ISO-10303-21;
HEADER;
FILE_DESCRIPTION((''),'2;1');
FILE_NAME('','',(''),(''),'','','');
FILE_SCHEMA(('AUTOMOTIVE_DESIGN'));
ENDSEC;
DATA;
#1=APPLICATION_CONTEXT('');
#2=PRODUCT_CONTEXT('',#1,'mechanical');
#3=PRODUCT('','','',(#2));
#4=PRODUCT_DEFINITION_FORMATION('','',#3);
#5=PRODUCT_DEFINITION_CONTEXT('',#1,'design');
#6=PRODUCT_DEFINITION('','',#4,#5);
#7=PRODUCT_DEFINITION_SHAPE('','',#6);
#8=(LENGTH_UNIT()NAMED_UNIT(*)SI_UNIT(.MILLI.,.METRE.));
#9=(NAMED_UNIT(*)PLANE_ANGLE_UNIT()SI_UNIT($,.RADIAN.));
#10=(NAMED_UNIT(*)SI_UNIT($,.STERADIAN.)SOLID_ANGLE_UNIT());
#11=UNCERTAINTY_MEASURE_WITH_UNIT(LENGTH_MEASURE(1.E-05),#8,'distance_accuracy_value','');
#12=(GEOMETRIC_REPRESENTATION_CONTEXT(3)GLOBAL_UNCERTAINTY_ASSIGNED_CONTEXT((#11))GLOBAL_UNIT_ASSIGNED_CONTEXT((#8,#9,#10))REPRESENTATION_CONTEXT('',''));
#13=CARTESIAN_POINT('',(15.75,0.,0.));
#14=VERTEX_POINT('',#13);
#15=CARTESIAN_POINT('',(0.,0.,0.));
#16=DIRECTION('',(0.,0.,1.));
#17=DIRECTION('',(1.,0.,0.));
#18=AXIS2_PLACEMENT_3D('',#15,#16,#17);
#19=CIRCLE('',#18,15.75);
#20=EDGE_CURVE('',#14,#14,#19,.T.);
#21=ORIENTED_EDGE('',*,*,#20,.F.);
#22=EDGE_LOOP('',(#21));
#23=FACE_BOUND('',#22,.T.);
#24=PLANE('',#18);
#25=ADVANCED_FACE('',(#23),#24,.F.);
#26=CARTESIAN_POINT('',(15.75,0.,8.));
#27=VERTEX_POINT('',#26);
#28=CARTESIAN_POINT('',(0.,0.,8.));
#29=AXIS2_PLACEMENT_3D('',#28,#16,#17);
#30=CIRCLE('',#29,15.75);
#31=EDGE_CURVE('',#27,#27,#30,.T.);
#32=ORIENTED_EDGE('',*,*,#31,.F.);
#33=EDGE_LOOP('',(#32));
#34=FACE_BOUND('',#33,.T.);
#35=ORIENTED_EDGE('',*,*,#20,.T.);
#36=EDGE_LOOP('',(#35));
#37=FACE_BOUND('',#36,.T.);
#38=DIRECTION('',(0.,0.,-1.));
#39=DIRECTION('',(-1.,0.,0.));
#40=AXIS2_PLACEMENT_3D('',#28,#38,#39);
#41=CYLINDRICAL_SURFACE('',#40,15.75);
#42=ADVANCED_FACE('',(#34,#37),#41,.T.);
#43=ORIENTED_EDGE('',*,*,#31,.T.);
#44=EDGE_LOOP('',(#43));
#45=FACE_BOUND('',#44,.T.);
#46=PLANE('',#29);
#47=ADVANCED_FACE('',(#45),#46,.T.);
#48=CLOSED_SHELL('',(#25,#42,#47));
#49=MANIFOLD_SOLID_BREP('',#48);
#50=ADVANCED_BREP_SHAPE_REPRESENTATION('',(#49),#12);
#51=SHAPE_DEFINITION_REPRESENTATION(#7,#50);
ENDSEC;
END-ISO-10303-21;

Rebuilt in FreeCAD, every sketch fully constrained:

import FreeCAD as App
import Part
import Sketcher

doc = App.newDocument("Part")
body = doc.addObject("PartDesign::Body", "Body")

# Sketch on XY plane
sketch1 = doc.addObject("Sketcher::SketchObject", "Sketch")
body.addObject(sketch1)
sketch1.AttachmentSupport = (doc.XY_Plane, [""])
sketch1.MapMode = "FlatFace"
sketch1.addGeometry(Part.Circle(App.Vector(0, 0, 0), App.Vector(0, 0, 1), 16), False)
sketch1.addConstraint(Sketcher.Constraint("Coincident", 0, 3, -1, 1))
sketch1.addConstraint(Sketcher.Constraint("Diameter", 0, 31.5))
pad1 = doc.addObject("PartDesign::Pad", "Pad")
body.addObject(pad1)
pad1.Profile = sketch1
pad1.Length = 8

doc.recompute()
